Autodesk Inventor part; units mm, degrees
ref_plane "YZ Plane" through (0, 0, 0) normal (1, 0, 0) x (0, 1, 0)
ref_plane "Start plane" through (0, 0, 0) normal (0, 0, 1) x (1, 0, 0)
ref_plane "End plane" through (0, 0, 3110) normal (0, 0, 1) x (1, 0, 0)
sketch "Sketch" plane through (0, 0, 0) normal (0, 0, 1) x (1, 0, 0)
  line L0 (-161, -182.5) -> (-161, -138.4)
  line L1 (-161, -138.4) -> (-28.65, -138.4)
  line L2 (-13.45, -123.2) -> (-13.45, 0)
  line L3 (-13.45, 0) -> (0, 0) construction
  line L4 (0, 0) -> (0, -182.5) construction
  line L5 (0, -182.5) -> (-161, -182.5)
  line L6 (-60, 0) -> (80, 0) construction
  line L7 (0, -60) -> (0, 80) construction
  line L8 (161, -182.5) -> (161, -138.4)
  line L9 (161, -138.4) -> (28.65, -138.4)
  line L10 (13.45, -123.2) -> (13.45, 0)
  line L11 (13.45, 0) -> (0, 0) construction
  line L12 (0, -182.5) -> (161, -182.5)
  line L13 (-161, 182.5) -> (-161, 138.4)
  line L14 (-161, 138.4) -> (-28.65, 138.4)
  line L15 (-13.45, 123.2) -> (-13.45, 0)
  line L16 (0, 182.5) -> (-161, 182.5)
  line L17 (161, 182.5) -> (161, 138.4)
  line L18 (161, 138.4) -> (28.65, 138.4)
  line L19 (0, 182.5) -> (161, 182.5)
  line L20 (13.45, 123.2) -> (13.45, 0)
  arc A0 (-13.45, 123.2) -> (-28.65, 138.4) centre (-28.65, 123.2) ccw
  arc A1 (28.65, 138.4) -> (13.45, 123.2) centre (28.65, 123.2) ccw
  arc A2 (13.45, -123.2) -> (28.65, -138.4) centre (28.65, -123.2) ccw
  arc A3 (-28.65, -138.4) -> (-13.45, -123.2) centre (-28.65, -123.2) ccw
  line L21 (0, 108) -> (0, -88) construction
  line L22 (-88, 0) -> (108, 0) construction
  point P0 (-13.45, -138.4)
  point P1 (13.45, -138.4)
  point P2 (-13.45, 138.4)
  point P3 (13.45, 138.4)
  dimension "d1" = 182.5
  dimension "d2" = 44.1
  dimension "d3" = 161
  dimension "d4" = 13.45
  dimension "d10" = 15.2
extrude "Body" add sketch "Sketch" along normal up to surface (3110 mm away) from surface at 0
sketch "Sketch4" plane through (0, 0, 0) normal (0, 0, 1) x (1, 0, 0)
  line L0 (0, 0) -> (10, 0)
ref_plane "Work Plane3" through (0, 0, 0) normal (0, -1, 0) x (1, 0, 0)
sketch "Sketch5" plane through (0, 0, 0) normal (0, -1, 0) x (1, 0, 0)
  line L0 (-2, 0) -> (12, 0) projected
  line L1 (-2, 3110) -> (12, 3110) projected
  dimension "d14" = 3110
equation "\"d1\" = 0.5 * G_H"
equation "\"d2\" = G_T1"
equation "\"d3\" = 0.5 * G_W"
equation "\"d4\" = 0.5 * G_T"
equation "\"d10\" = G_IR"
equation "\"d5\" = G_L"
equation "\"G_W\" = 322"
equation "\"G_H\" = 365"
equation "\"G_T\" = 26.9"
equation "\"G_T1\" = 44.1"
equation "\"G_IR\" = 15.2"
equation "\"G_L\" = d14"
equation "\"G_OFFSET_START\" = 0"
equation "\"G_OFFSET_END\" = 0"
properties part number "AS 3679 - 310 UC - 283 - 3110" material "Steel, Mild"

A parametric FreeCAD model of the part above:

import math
import FreeCAD as App
import Part
import Sketcher

doc = App.newDocument("Part")
body = doc.addObject("PartDesign::Body", "Body")

sketch1 = doc.addObject("Sketcher::SketchObject", "Sketch")
body.addObject(sketch1)
sketch1.AttachmentSupport = (doc.XY_Plane, [""])
sketch1.MapMode = "FlatFace"
sketch1.addGeometry(Part.LineSegment(App.Vector(-161, -138.4, 0), App.Vector(-161, -182.5, 0)), False)
sketch1.addGeometry(Part.LineSegment(App.Vector(-161, -182.5, 0), App.Vector(161, -182.5, 0)), False)
sketch1.addGeometry(Part.LineSegment(App.Vector(161, -182.5, 0), App.Vector(161, -138.4, 0)), False)
sketch1.addGeometry(Part.LineSegment(App.Vector(161, -138.4, 0), App.Vector(28.65, -138.4, 0)), False)
sketch1.addGeometry(Part.ArcOfCircle(Part.Circle(App.Vector(28.65, -123.2, 0), App.Vector(0, 0, 1), 15.2), math.radians(180), math.radians(270)), False)
sketch1.addGeometry(Part.LineSegment(App.Vector(13.45, -123.2, 0), App.Vector(13.45, 123.2, 0)), False)
sketch1.addGeometry(Part.ArcOfCircle(Part.Circle(App.Vector(28.65, 123.2, 0), App.Vector(0, 0, 1), 15.2), math.radians(90), math.radians(180)), False)
sketch1.addGeometry(Part.LineSegment(App.Vector(28.65, 138.4, 0), App.Vector(161, 138.4, 0)), False)
sketch1.addGeometry(Part.LineSegment(App.Vector(161, 138.4, 0), App.Vector(161, 182.5, 0)), False)
sketch1.addGeometry(Part.LineSegment(App.Vector(161, 182.5, 0), App.Vector(-161, 182.5, 0)), False)
sketch1.addGeometry(Part.LineSegment(App.Vector(-161, 182.5, 0), App.Vector(-161, 138.4, 0)), False)
sketch1.addGeometry(Part.LineSegment(App.Vector(-161, 138.4, 0), App.Vector(-28.65, 138.4, 0)), False)
sketch1.addGeometry(Part.ArcOfCircle(Part.Circle(App.Vector(-28.65, 123.2, 0), App.Vector(0, 0, 1), 15.2), math.radians(0), math.radians(90)), False)
sketch1.addGeometry(Part.LineSegment(App.Vector(-13.45, 123.2, 0), App.Vector(-13.45, -123.2, 0)), False)
sketch1.addGeometry(Part.ArcOfCircle(Part.Circle(App.Vector(-28.65, -123.2, 0), App.Vector(0, 0, 1), 15.2), math.radians(-90), math.radians(0)), False)
sketch1.addGeometry(Part.LineSegment(App.Vector(-28.65, -138.4, 0), App.Vector(-161, -138.4, 0)), False)
sketch1.addConstraint(Sketcher.Constraint("Coincident", 0, 2, 1, 1))
sketch1.addConstraint(Sketcher.Constraint("Coincident", 1, 2, 2, 1))
sketch1.addConstraint(Sketcher.Constraint("Coincident", 2, 2, 3, 1))
sketch1.addConstraint(Sketcher.Constraint("Tangent", 3, 2, 4, 2))
sketch1.addConstraint(Sketcher.Constraint("Tangent", 4, 1, 5, 1))
sketch1.addConstraint(Sketcher.Constraint("Tangent", 5, 2, 6, 2))
sketch1.addConstraint(Sketcher.Constraint("Tangent", 6, 1, 7, 1))
sketch1.addConstraint(Sketcher.Constraint("Coincident", 7, 2, 8, 1))
sketch1.addConstraint(Sketcher.Constraint("Coincident", 8, 2, 9, 1))
sketch1.addConstraint(Sketcher.Constraint("Coincident", 9, 2, 10, 1))
sketch1.addConstraint(Sketcher.Constraint("Coincident", 10, 2, 11, 1))
sketch1.addConstraint(Sketcher.Constraint("Tangent", 11, 2, 12, 2))
sketch1.addConstraint(Sketcher.Constraint("Tangent", 12, 1, 13, 1))
sketch1.addConstraint(Sketcher.Constraint("Tangent", 13, 2, 14, 2))
sketch1.addConstraint(Sketcher.Constraint("Tangent", 14, 1, 15, 1))
sketch1.addConstraint(Sketcher.Constraint("Coincident", 15, 2, 0, 1))
sketch1.addConstraint(Sketcher.Constraint("Vertical", 0))
sketch1.addConstraint(Sketcher.Constraint("Horizontal", 1))
sketch1.addConstraint(Sketcher.Constraint("Vertical", 2))
sketch1.addConstraint(Sketcher.Constraint("Horizontal", 3))
sketch1.addConstraint(Sketcher.Constraint("Vertical", 5))
sketch1.addConstraint(Sketcher.Constraint("Horizontal", 7))
sketch1.addConstraint(Sketcher.Constraint("Vertical", 8))
sketch1.addConstraint(Sketcher.Constraint("Horizontal", 9))
sketch1.addConstraint(Sketcher.Constraint("Vertical", 10))
sketch1.addConstraint(Sketcher.Constraint("Horizontal", 11))
sketch1.addConstraint(Sketcher.Constraint("Vertical", 13))
sketch1.addConstraint(Sketcher.Constraint("Horizontal", 15))
sketch1.addConstraint(Sketcher.Constraint("Equal", 4, 6))
sketch1.addConstraint(Sketcher.Constraint("Equal", 6, 12))
sketch1.addConstraint(Sketcher.Constraint("Equal", 12, 14))
sketch1.addConstraint(Sketcher.Constraint("Symmetric", 4, 3, 12, 3, -1, 1))
sketch1.addConstraint(Sketcher.Constraint("Symmetric", 0, 2, 8, 2, -1, 1))
sketch1.addConstraint(Sketcher.Constraint("Symmetric", 7, 2, 10, 2, -2))
sketch1.addConstraint(Sketcher.Constraint("Symmetric", 2, 2, 15, 2, -2))
sketch1.addConstraint(Sketcher.Constraint("Radius", 4, 15.2))
sketch1.addConstraint(Sketcher.Constraint("DistanceY", 0, 2, 0, 1, 44.1))
sketch1.addConstraint(Sketcher.Constraint("DistanceX", 0, 2, -1, 1, 161.0))
sketch1.addConstraint(Sketcher.Constraint("DistanceY", 0, 2, -1, 1, 182.5))
sketch1.addConstraint(Sketcher.Constraint("DistanceX", -1, 1, 4, 1, 13.45))
pad1 = doc.addObject("PartDesign::Pad", "Pad")
body.addObject(pad1)
pad1.Profile = sketch1
pad1.Length = 3110

doc.recompute()
